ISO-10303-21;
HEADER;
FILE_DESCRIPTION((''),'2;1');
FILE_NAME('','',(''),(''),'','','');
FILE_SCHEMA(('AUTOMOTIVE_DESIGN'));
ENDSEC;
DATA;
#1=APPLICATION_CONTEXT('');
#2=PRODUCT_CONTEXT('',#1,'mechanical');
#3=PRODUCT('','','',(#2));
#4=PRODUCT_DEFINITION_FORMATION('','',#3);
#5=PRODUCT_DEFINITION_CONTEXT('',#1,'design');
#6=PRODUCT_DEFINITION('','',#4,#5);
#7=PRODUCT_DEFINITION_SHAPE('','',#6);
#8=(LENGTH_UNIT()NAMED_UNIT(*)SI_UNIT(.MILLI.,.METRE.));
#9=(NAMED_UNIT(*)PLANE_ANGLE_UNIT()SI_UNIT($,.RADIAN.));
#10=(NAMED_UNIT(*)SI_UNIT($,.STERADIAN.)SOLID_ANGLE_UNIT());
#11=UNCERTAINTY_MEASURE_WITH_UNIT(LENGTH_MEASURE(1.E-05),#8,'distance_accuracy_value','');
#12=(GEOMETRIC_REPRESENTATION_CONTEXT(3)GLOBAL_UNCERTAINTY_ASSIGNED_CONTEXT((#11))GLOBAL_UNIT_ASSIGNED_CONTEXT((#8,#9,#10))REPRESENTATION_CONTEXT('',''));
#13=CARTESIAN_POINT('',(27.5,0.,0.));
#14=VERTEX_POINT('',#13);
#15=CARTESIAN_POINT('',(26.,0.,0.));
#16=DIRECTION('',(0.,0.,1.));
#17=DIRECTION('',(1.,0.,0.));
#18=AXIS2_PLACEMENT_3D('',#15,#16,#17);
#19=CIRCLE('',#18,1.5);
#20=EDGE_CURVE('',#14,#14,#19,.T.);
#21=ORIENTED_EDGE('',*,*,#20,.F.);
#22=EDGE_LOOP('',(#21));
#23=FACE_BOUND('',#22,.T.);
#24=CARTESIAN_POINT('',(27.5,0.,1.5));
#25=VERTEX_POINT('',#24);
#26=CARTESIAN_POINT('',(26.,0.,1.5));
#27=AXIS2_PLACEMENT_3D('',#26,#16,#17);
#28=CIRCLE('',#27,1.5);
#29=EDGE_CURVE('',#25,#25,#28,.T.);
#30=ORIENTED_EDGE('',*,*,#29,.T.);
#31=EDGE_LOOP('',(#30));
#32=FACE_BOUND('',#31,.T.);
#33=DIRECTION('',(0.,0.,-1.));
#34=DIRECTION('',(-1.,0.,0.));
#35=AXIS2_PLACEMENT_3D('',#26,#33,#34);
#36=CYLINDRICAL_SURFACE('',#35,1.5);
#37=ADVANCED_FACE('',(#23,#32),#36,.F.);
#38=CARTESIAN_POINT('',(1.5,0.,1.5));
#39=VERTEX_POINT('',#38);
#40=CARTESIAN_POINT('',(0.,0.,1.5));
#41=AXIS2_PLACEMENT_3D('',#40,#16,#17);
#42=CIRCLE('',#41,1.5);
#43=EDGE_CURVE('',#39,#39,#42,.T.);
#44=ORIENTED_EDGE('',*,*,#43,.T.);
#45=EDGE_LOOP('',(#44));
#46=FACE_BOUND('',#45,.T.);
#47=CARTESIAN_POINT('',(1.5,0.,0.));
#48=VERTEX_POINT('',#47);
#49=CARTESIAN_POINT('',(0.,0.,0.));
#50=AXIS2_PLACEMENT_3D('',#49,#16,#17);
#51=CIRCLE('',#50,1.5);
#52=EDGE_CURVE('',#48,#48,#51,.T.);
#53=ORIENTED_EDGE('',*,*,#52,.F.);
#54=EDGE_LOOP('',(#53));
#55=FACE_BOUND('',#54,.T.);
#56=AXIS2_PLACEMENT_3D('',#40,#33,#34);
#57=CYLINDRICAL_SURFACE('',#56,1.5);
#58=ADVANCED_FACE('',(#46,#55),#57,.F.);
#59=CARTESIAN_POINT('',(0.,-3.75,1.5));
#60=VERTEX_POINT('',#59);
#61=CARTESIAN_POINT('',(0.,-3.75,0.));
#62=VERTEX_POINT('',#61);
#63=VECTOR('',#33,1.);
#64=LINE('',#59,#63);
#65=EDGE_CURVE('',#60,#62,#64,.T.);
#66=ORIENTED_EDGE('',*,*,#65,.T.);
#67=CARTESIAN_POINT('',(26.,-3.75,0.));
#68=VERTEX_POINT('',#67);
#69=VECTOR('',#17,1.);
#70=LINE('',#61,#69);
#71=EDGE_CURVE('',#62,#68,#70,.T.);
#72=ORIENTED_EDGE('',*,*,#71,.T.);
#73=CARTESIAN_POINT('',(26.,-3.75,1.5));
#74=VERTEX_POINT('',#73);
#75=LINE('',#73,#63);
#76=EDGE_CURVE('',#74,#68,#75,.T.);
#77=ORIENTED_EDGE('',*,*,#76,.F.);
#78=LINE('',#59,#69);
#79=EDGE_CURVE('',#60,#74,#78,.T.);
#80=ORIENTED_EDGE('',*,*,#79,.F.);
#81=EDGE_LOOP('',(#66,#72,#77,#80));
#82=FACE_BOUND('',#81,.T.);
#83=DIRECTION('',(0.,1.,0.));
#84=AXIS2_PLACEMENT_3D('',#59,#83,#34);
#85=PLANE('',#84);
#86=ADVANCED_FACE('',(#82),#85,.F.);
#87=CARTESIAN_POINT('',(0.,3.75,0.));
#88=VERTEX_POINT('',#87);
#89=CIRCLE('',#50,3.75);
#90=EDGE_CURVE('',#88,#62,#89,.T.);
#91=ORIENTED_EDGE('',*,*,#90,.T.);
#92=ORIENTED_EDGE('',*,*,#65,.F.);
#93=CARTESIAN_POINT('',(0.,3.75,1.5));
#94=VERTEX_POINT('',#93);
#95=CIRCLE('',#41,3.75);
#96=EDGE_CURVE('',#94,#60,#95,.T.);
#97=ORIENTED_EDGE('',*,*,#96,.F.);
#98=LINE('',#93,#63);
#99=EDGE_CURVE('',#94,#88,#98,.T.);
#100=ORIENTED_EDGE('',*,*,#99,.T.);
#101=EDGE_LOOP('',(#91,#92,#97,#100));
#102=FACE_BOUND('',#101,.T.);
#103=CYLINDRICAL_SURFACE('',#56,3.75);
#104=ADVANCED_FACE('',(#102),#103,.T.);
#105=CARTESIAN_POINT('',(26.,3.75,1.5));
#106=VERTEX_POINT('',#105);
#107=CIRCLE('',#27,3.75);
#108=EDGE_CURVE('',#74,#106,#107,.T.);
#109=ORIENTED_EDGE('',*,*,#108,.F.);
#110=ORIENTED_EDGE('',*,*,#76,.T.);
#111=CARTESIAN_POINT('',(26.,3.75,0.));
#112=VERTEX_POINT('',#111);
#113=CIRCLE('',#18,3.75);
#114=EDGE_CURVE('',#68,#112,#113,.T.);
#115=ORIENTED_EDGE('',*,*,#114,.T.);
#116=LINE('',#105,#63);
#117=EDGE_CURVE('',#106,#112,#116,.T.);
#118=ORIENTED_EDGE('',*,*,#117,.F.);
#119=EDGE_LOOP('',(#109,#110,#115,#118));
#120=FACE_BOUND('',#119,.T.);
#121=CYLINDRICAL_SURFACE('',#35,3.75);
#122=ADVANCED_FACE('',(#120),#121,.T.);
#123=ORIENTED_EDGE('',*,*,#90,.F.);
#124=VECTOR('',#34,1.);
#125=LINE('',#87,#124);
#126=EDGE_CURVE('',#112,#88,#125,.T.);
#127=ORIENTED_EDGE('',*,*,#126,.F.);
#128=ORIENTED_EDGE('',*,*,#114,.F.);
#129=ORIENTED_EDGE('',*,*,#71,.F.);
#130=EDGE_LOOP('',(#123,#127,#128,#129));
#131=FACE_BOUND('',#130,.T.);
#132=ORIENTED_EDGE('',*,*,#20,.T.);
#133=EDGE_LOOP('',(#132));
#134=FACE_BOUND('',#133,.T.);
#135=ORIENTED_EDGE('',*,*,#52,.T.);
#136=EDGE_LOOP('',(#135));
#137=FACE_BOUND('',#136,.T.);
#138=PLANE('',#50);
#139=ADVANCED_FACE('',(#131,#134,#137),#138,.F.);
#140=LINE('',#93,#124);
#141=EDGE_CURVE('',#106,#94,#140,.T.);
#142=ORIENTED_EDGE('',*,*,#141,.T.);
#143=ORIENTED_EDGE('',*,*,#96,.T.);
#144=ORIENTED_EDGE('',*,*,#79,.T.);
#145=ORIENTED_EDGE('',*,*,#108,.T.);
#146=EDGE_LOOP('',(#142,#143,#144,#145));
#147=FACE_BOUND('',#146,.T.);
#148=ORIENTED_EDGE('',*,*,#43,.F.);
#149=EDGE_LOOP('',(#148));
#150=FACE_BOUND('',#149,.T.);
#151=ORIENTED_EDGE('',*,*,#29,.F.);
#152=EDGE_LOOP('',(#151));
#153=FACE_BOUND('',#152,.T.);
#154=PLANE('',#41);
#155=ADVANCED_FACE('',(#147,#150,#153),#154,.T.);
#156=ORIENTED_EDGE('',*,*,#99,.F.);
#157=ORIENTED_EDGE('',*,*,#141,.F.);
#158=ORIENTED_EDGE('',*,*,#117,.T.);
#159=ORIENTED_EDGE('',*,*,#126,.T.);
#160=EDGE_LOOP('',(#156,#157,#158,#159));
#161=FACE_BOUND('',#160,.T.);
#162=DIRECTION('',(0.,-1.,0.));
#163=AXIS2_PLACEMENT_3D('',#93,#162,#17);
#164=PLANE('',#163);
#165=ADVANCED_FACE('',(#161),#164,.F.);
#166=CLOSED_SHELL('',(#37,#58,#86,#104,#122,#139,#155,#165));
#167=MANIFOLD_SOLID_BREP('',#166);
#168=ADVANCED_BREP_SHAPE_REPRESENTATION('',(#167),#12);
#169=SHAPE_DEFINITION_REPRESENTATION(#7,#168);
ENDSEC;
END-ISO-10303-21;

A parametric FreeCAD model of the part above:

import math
import FreeCAD as App
import Part
import Sketcher
from FreeCAD import Vector

doc = App.newDocument("Part")
body = doc.addObject("PartDesign::Body", "Body")

# Sketch on XY plane
sketch1 = body.newObject("Sketcher::SketchObject", "Sketch")
sketch1.AttachmentSupport = (doc.getObject("XY_Plane"), [""])
sketch1.MapMode = "FlatFace"
sketch1.addGeometry(Part.LineSegment(Vector(26, 3.75, 0), Vector(0, 3.75, 0)), False)
sketch1.addGeometry(Part.ArcOfCircle(Part.Circle(Vector(0, 0, 0), Vector(0, 0, 1), 3.75), math.radians(90), math.radians(270)), False)
sketch1.addGeometry(Part.LineSegment(Vector(0, -3.75, 0), Vector(26, -3.75, 0)), False)
sketch1.addGeometry(Part.ArcOfCircle(Part.Circle(Vector(26, 0, 0), Vector(0, 0, 1), 3.75), math.radians(-90), math.radians(90)), False)
sketch1.addGeometry(Part.Circle(Vector(26, 0, 0), Vector(0, 0, 1), 1.5), False)
sketch1.addGeometry(Part.Circle(Vector(0, 0, 0), Vector(0, 0, 1), 1.5), False)
sketch1.addConstraint(Sketcher.Constraint("Tangent", 0, 2, 1, 1))
sketch1.addConstraint(Sketcher.Constraint("Tangent", 1, 2, 2, 1))
sketch1.addConstraint(Sketcher.Constraint("Tangent", 2, 2, 3, 1))
sketch1.addConstraint(Sketcher.Constraint("Tangent", 3, 2, 0, 1))
sketch1.addConstraint(Sketcher.Constraint("Horizontal", 0))
sketch1.addConstraint(Sketcher.Constraint("Horizontal", 2))
sketch1.addConstraint(Sketcher.Constraint("Coincident", 1, 3, -1, 1))
sketch1.addConstraint(Sketcher.Constraint("Coincident", 5, 3, -1, 1))
sketch1.addConstraint(Sketcher.Constraint("Coincident", 4, 3, 3, 3))
sketch1.addConstraint(Sketcher.Constraint("Equal", 4, 5))
sketch1.addConstraint(Sketcher.Constraint("Diameter", 4, 3.0))
sketch1.addConstraint(Sketcher.Constraint("DistanceX", 0, 2, 0, 1, 26.0))
sketch1.addConstraint(Sketcher.Constraint("Radius", 1, 3.75))
pad1 = body.newObject("PartDesign::Pad", "Pad")
pad1.Profile = sketch1
pad1.Length = 1.5

doc.recompute()
